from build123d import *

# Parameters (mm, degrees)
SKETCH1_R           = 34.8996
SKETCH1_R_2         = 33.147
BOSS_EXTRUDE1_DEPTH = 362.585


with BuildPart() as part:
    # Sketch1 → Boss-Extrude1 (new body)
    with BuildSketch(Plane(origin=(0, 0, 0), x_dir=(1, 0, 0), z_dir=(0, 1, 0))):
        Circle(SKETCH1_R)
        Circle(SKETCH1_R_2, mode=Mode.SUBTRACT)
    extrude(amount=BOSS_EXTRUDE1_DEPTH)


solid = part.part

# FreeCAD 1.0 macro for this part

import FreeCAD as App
import Part
import Sketcher
from FreeCAD import Vector
Q = App.Units.Quantity

doc = App.newDocument("Part")
body = doc.addObject("PartDesign::Body", "Body")

# Sketch on XZ plane
sketch1 = doc.addObject("Sketcher::SketchObject", "Sketch")
body.addObject(sketch1)
sketch1.AttachmentSupport = (doc.XZ_Plane, [""])
sketch1.MapMode = "FlatFace"
sketch1.addGeometry([
    Part.Circle(Vector(0, 0, 0), Vector(0, 0, 1), 35),
    Part.Circle(Vector(0, 0, 0), Vector(0, 0, 1), 33),
], False)
sketch1.addConstraint([
    Sketcher.Constraint("Coincident", 0, 3, -1, 1),
    Sketcher.Constraint("Coincident", 1, 3, -1, 1),
    Sketcher.Constraint("Diameter", 1, Q("2.61 in")),
    Sketcher.Constraint("Diameter", 0, Q("2.748 in")),
])
pad1 = doc.addObject("PartDesign::Pad", "Pad")
body.addObject(pad1)
pad1.Profile = sketch1
pad1.Length = Q("14.275 in")
pad1.Reversed = True

doc.recompute()
